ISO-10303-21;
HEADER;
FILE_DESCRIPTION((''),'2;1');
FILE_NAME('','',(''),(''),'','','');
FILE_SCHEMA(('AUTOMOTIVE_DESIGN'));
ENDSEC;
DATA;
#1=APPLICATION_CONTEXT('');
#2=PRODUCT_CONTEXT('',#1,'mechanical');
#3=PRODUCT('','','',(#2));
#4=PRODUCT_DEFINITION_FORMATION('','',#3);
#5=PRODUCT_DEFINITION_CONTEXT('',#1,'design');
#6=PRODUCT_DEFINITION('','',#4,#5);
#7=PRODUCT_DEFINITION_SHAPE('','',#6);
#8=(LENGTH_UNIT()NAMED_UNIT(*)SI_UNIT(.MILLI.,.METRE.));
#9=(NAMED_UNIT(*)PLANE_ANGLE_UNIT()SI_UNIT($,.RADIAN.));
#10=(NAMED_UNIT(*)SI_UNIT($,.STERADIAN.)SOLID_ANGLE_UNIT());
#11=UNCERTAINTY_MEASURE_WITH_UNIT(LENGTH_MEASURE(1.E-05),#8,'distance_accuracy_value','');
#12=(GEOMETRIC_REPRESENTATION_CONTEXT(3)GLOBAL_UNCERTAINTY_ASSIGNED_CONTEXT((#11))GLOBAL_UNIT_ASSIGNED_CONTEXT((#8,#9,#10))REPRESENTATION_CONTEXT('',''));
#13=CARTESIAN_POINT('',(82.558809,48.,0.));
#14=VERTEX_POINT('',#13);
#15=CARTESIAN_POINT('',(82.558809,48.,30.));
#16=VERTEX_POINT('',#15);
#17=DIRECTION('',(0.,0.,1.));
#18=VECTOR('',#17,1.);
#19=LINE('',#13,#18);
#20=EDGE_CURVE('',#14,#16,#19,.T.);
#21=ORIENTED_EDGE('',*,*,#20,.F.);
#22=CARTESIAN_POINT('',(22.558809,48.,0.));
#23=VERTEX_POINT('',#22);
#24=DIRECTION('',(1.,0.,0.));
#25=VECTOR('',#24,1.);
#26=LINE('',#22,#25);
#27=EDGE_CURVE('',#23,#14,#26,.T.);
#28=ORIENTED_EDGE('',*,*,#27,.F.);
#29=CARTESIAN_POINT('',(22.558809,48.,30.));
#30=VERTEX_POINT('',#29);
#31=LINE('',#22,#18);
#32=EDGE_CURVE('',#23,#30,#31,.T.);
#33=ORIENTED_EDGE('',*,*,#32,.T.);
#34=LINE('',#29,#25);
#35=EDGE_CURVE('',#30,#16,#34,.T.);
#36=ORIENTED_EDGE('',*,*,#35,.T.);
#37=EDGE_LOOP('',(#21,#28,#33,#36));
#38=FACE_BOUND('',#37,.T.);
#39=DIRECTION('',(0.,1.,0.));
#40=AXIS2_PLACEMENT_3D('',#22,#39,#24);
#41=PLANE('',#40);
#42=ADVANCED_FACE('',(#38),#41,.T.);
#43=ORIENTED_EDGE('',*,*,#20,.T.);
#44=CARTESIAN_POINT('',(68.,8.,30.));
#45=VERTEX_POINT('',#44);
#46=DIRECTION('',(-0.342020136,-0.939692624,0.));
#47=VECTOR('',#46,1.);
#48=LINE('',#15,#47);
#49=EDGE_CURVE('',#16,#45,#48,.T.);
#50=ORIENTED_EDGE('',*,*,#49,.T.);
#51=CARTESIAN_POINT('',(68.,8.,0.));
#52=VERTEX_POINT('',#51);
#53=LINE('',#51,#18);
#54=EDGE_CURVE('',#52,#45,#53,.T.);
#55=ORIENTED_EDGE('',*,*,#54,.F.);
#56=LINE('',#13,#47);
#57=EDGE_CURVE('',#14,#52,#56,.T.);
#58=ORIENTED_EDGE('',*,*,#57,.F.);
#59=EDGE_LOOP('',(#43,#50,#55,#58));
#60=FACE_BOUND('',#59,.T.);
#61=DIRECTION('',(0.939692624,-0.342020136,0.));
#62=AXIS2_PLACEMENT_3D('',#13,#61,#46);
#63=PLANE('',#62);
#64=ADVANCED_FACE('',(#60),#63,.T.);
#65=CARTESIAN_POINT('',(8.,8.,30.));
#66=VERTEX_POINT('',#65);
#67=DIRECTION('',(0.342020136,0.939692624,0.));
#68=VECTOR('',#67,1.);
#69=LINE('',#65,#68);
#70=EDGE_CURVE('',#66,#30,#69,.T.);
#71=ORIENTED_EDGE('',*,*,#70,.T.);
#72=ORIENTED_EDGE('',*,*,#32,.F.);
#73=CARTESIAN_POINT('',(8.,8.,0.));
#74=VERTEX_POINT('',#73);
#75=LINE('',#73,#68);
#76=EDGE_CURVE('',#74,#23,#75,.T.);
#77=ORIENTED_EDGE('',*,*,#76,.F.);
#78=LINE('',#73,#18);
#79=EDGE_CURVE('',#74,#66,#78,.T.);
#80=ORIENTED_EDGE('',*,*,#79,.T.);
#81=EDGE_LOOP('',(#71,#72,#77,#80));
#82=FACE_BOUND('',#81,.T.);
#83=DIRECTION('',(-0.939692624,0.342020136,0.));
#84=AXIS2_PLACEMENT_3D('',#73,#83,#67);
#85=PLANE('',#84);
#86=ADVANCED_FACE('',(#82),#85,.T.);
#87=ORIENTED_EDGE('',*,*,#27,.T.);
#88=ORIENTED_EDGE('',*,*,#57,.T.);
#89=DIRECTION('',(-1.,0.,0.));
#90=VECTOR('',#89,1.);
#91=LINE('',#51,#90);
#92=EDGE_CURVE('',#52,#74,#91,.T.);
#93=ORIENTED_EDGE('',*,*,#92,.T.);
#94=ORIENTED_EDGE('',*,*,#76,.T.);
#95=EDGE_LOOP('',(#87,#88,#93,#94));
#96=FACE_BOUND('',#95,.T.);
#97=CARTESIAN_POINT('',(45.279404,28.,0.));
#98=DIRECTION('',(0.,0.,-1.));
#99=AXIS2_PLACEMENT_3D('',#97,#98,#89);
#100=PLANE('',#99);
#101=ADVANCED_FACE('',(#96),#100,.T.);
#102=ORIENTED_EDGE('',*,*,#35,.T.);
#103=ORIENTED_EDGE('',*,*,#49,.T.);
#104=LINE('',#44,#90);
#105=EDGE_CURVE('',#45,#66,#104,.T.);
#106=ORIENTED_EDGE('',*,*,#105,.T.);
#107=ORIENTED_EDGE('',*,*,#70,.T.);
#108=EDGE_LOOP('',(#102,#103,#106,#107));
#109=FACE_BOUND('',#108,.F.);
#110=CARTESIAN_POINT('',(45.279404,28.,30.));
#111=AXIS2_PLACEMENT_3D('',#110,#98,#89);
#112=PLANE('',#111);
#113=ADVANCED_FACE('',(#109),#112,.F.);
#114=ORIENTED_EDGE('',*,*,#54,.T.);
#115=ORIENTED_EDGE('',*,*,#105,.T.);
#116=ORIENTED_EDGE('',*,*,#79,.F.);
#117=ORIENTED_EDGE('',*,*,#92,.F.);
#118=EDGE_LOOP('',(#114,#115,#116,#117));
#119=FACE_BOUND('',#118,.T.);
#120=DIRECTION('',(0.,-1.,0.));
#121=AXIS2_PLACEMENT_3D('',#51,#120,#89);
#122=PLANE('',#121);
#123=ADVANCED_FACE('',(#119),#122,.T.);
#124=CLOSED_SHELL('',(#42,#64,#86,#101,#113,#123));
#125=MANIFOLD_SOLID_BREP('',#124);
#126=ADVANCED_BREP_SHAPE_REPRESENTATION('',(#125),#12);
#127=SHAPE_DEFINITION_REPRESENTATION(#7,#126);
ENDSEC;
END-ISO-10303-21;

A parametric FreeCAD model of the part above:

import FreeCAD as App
import Part
import Sketcher
from FreeCAD import Vector
Q = App.Units.Quantity


def add_polygon(sketch, points):
    """Adds a closed chain of lines whose ends are joined by coincident constraints."""
    first, n = sketch.GeometryCount, len(points)
    for a, b in zip(points, points[1:] + points[:1]):
        sketch.addGeometry(Part.LineSegment(App.Vector(*a, 0), App.Vector(*b, 0)), False)
    for i in range(n):
        sketch.addConstraint(Sketcher.Constraint("Coincident", first + i, 2, first + (i + 1) % n, 1))

doc = App.newDocument("Part")
params = doc.addObject("Spreadsheet::Sheet", "Params")
for row, (alias, value) in enumerate([
    ("sketch1_width", "60 mm"),
    ("pad1_length", "30 mm"),
], start=1):
    params.set(f"A{row}", alias)
    params.set(f"B{row}", "=" + value)
    params.setAlias(f"B{row}", alias)

body = doc.addObject("PartDesign::Body", "Body")

sketch1 = body.newObject("Sketcher::SketchObject", "Sketch")
sketch1.AttachmentSupport = (doc.getObject("XY_Plane"), [""])
sketch1.MapMode = "FlatFace"
add_polygon(sketch1, [(83, 48), (23, 48), (8, 8), (68, 8)])
sketch1.addConstraint([
    Sketcher.Constraint("Horizontal", 0),
    Sketcher.Constraint("Horizontal", 2),
    Sketcher.Constraint("Parallel", 1, 3),
    Sketcher.Constraint("DistanceX", 0, 2, 0, 1, Q("60 mm")),
    Sketcher.Constraint("Angle", 1, Q("-110 deg")),
    Sketcher.Constraint("DistanceY", -1, 1, 0, 2, Q("48 mm")),
    Sketcher.Constraint("DistanceX", -1, 1, 1, 2, Q("8 mm")),
    Sketcher.Constraint("DistanceY", -1, 1, 1, 2, Q("8 mm")),
])
sketch1.setExpression("Constraints[7]", "Params.sketch1_width")
pad1 = body.newObject("PartDesign::Pad", "Pad")
pad1.Profile = sketch1
pad1.setExpression("Length", "Params.pad1_length")

doc.recompute()
